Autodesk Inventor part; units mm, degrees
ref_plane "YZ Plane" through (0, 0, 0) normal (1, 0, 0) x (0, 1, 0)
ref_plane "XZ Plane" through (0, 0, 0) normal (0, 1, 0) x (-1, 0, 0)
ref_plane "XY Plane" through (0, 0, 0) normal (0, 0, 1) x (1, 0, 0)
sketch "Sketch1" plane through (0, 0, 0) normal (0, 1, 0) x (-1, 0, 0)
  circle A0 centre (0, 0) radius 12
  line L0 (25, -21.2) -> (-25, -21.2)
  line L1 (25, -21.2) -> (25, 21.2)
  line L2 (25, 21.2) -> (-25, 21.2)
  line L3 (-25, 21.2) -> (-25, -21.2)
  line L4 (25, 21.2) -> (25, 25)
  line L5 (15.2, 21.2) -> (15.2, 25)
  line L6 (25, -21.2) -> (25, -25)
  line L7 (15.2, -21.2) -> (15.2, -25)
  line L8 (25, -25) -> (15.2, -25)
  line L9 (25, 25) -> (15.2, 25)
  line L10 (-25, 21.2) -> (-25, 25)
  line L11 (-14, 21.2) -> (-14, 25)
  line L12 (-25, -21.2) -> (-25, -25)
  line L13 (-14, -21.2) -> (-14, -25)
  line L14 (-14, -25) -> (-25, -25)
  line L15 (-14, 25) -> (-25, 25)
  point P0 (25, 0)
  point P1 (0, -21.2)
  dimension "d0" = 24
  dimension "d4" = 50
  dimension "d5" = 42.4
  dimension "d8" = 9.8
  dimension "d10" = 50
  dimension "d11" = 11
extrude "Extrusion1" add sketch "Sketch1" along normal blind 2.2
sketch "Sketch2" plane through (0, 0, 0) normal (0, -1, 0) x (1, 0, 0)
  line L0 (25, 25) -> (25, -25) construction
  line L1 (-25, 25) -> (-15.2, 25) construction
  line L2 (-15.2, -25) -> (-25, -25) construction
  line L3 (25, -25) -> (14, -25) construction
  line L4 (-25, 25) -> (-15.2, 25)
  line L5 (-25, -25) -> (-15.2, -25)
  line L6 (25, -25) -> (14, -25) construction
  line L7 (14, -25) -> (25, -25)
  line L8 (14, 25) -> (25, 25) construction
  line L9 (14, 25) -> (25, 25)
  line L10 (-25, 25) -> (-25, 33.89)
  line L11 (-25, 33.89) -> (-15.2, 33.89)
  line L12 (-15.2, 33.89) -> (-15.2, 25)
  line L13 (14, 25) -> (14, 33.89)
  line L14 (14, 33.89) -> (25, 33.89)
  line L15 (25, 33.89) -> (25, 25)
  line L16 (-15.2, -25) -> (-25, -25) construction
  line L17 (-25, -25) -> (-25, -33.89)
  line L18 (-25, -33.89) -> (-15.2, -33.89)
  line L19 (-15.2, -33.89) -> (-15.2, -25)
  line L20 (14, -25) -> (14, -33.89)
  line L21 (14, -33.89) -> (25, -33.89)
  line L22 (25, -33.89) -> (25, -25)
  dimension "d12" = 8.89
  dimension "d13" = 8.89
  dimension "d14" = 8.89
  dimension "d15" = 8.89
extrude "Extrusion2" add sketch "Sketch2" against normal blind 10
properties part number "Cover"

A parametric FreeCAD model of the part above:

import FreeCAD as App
import Part
import Sketcher
from FreeCAD import Vector


def add_polygon(sketch, points):
    """Adds a closed chain of lines whose ends are joined by coincident constraints."""
    first, n = sketch.GeometryCount, len(points)
    for a, b in zip(points, points[1:] + points[:1]):
        sketch.addGeometry(Part.LineSegment(App.Vector(*a, 0), App.Vector(*b, 0)), False)
    for i in range(n):
        sketch.addConstraint(Sketcher.Constraint("Coincident", first + i, 2, first + (i + 1) % n, 1))

doc = App.newDocument("Part")
body = doc.addObject("PartDesign::Body", "Body")

# Sketch on XZ plane
sketch1 = body.newObject("Sketcher::SketchObject", "Sketch")
sketch1.AttachmentSupport = (doc.getObject("XZ_Plane"), [""])
sketch1.MapMode = "FlatFace"
add_polygon(sketch1, [(-25, -25), (-25, 25), (-15.2, 25), (-15.2, 21.2), (14, 21.2), (14, 25), (25, 25), (25, -25), (14, -25), (14, -21.2), (-15.2, -21.2), (-15.2, -25)])  # lines 0-11
sketch1.addGeometry(Part.Circle(Vector(0, 0, 0), Vector(0, 0, 1), 12), False)  # 12
sketch1.addConstraint([
    Sketcher.Constraint("Vertical", 0),
    Sketcher.Constraint("Horizontal", 1),
    Sketcher.Constraint("Vertical", 2),
    Sketcher.Constraint("Horizontal", 3),
    Sketcher.Constraint("Vertical", 4),
    Sketcher.Constraint("Horizontal", 5),
    Sketcher.Constraint("Vertical", 6),
    Sketcher.Constraint("Horizontal", 7),
    Sketcher.Constraint("Vertical", 8),
    Sketcher.Constraint("Horizontal", 9),
    Sketcher.Constraint("Vertical", 10),
    Sketcher.Constraint("Horizontal", 11),
    Sketcher.Constraint("Coincident", 12, 3, -1, 1),
    Sketcher.Constraint("Symmetric", 0, 2, 6, 2, -1, 1),
    Sketcher.Constraint("Symmetric", 4, 2, 7, 2, -1),
    Sketcher.Constraint("Symmetric", 2, 2, 9, 2, -1),
    Sketcher.Constraint("Horizontal", 7, 2, 10, 2),
    Sketcher.Constraint("Diameter", 12, 24.0),
    Sketcher.Constraint("DistanceX", 5, 1, 5, 2, 11.0),
    Sketcher.Constraint("DistanceY", 0, 1, 0, 2, 50.0),
    Sketcher.Constraint("DistanceX", 1, 1, 1, 2, 9.8),
    Sketcher.Constraint("DistanceY", 8, 2, 3, 2, 42.4),
    Sketcher.Constraint("DistanceX", 3, 1, 3, 2, 29.2),
])
pad1 = body.newObject("PartDesign::Pad", "Pad")
pad1.Profile = sketch1
pad1.Length = 2.2
pad1.Reversed = True

# Sketch on XZ plane
sketch2 = body.newObject("Sketcher::SketchObject", "Sketch001")
sketch2.AttachmentSupport = (doc.getObject("XZ_Plane"), [""])
sketch2.MapMode = "FlatFace"
add_polygon(sketch2, [(-25, 34), (-25, 25), (-15, 25), (-15, 34)])  # lines 0-3
add_polygon(sketch2, [(-15, -25), (-25, -25), (-25, -34), (-15, -34)])  # lines 4-7
add_polygon(sketch2, [(25, -25), (14, -25), (14, -34), (25, -34)])  # lines 8-11
add_polygon(sketch2, [(14, 34), (14, 25), (25, 25), (25, 34)])  # lines 12-15
sketch2.addConstraint([
    Sketcher.Constraint("Vertical", 0),
    Sketcher.Constraint("Horizontal", 1),
    Sketcher.Constraint("Vertical", 2),
    Sketcher.Constraint("Horizontal", 3),
    Sketcher.Constraint("Horizontal", 4),
    Sketcher.Constraint("Vertical", 5),
    Sketcher.Constraint("Horizontal", 6),
    Sketcher.Constraint("Vertical", 7),
    Sketcher.Constraint("Horizontal", 8),
    Sketcher.Constraint("Vertical", 9),
    Sketcher.Constraint("Horizontal", 10),
    Sketcher.Constraint("Vertical", 11),
    Sketcher.Constraint("Vertical", 12),
    Sketcher.Constraint("Horizontal", 13),
    Sketcher.Constraint("Vertical", 14),
    Sketcher.Constraint("Horizontal", 15),
    Sketcher.Constraint("Symmetric", 3, 2, 10, 2, -1, 1),
    Sketcher.Constraint("Symmetric", 4, 2, 13, 2, -1, 1),
    Sketcher.Constraint("Symmetric", 5, 2, 10, 2, -2),
    Sketcher.Constraint("Symmetric", 1, 2, 7, 2, -1),
    Sketcher.Constraint("Symmetric", 8, 2, 12, 2, -1),
    Sketcher.Constraint("Horizontal", 3, 2, 14, 2),
    Sketcher.Constraint("DistanceY", 0, 2, 0, 1, 8.89),
    Sketcher.Constraint("DistanceX", 8, 2, 8, 1, 11.0),
    Sketcher.Constraint("DistanceX", 1, 1, 1, 2, 9.8),
    Sketcher.Constraint("DistanceX", 0, 2, -1, 1, 25.0),
    Sketcher.Constraint("DistanceY", -1, 1, 0, 2, 25.0),
])
pad2 = body.newObject("PartDesign::Pad", "Pad001")
pad2.Profile = sketch2
pad2.Length = 10
pad2.Reversed = True

doc.recompute()
